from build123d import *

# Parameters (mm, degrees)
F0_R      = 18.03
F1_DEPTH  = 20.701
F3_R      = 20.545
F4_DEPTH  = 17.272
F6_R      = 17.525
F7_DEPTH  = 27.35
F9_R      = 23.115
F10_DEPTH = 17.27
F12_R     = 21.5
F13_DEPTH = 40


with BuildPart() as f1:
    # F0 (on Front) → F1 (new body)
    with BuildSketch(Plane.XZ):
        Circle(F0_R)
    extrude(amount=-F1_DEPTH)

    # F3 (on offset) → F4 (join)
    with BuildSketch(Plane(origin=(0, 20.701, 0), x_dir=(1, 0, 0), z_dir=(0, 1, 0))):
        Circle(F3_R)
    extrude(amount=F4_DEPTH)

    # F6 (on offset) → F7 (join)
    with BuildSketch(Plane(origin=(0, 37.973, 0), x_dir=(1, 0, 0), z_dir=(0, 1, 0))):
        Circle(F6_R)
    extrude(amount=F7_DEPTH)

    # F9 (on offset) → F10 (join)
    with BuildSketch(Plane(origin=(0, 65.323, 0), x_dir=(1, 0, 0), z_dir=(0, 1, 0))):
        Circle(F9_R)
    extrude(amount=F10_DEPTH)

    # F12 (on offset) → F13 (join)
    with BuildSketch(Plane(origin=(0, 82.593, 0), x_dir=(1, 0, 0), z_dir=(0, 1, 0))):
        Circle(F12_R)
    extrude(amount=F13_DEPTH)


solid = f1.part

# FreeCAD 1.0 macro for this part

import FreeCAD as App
import Part
import Sketcher

V = App.Vector

doc = App.newDocument("Part")
params = doc.addObject("Spreadsheet::Sheet", "Params")
for row, (alias, value) in enumerate([
    ("sketch1_diameter", "36.06 mm"),
    ("pad1_length", "20.701 mm"),
    ("sketch2_diameter", "41.09 mm"),
    ("pad2_length", "17.272 mm"),
    ("sketch3_diameter", "35.05 mm"),
    ("pad3_length", "27.35 mm"),
    ("sketch4_diameter", "46.23 mm"),
    ("pad4_length", "17.27 mm"),
    ("sketch5_diameter", "43 mm"),
    ("pad5_length", "40 mm"),
], start=1):
    params.set(f"A{row}", alias)
    params.set(f"B{row}", "=" + value)
    params.setAlias(f"B{row}", alias)

body = doc.addObject("PartDesign::Body", "Body")

# Sketch on XZ plane
sketch1 = doc.addObject("Sketcher::SketchObject", "Sketch")
body.addObject(sketch1)
sketch1.AttachmentSupport = (doc.XZ_Plane, [""])
sketch1.MapMode = "FlatFace"
sketch1.addGeometry(Part.Circle(V(0, 0, 0), V(0, 0, 1), 18), False)
sketch1.addConstraint([
    Sketcher.Constraint("Coincident", 0, 3, -1, 1),
    Sketcher.Constraint("Diameter", 0, 36.06),
])
sketch1.setExpression("Constraints[1]", "Params.sketch1_diameter")
pad1 = doc.addObject("PartDesign::Pad", "Pad")
body.addObject(pad1)
pad1.Profile = sketch1
pad1.setExpression("Length", "Params.pad1_length")
pad1.Reversed = True

# Sketch on XZ plane
sketch2 = doc.addObject("Sketcher::SketchObject", "Sketch001")
body.addObject(sketch2)
sketch2.AttachmentSupport = (doc.XZ_Plane, [""])
sketch2.MapMode = "FlatFace"
sketch2.AttachmentOffset = App.Placement(V(0, 0, -20.701), App.Rotation())
sketch2.addGeometry(Part.Circle(V(0, 0, 0), V(0, 0, 1), 21), False)
sketch2.addConstraint([
    Sketcher.Constraint("Coincident", 0, 3, -1, 1),
    Sketcher.Constraint("Diameter", 0, 41.09),
])
sketch2.setExpression("Constraints[1]", "Params.sketch2_diameter")
pad2 = doc.addObject("PartDesign::Pad", "Pad001")
body.addObject(pad2)
pad2.Profile = sketch2
pad2.setExpression("Length", "Params.pad2_length")
pad2.Reversed = True

# Sketch on XZ plane
sketch3 = doc.addObject("Sketcher::SketchObject", "Sketch002")
body.addObject(sketch3)
sketch3.AttachmentSupport = (doc.XZ_Plane, [""])
sketch3.MapMode = "FlatFace"
sketch3.AttachmentOffset = App.Placement(V(0, 0, -37.973), App.Rotation())
sketch3.addGeometry(Part.Circle(V(0, 0, 0), V(0, 0, 1), 18), False)
sketch3.addConstraint([
    Sketcher.Constraint("Coincident", 0, 3, -1, 1),
    Sketcher.Constraint("Diameter", 0, 35.05),
])
sketch3.setExpression("Constraints[1]", "Params.sketch3_diameter")
pad3 = doc.addObject("PartDesign::Pad", "Pad002")
body.addObject(pad3)
pad3.Profile = sketch3
pad3.setExpression("Length", "Params.pad3_length")
pad3.Reversed = True

# Sketch on XZ plane
sketch4 = doc.addObject("Sketcher::SketchObject", "Sketch003")
body.addObject(sketch4)
sketch4.AttachmentSupport = (doc.XZ_Plane, [""])
sketch4.MapMode = "FlatFace"
sketch4.AttachmentOffset = App.Placement(V(0, 0, -65.323), App.Rotation())
sketch4.addGeometry(Part.Circle(V(0, 0, 0), V(0, 0, 1), 23), False)
sketch4.addConstraint([
    Sketcher.Constraint("Coincident", 0, 3, -1, 1),
    Sketcher.Constraint("Diameter", 0, 46.23),
])
sketch4.setExpression("Constraints[1]", "Params.sketch4_diameter")
pad4 = doc.addObject("PartDesign::Pad", "Pad003")
body.addObject(pad4)
pad4.Profile = sketch4
pad4.setExpression("Length", "Params.pad4_length")
pad4.Reversed = True

# Sketch on XZ plane
sketch5 = doc.addObject("Sketcher::SketchObject", "Sketch004")
body.addObject(sketch5)
sketch5.AttachmentSupport = (doc.XZ_Plane, [""])
sketch5.MapMode = "FlatFace"
sketch5.AttachmentOffset = App.Placement(V(0, 0, -82.593), App.Rotation())
sketch5.addGeometry(Part.Circle(V(0, 0, 0), V(0, 0, 1), 22), False)
sketch5.addConstraint([
    Sketcher.Constraint("Coincident", 0, 3, -1, 1),
    Sketcher.Constraint("Diameter", 0, 43.0),
])
sketch5.setExpression("Constraints[1]", "Params.sketch5_diameter")
pad5 = doc.addObject("PartDesign::Pad", "Pad004")
body.addObject(pad5)
pad5.Profile = sketch5
pad5.setExpression("Length", "Params.pad5_length")
pad5.Reversed = True

doc.recompute()
